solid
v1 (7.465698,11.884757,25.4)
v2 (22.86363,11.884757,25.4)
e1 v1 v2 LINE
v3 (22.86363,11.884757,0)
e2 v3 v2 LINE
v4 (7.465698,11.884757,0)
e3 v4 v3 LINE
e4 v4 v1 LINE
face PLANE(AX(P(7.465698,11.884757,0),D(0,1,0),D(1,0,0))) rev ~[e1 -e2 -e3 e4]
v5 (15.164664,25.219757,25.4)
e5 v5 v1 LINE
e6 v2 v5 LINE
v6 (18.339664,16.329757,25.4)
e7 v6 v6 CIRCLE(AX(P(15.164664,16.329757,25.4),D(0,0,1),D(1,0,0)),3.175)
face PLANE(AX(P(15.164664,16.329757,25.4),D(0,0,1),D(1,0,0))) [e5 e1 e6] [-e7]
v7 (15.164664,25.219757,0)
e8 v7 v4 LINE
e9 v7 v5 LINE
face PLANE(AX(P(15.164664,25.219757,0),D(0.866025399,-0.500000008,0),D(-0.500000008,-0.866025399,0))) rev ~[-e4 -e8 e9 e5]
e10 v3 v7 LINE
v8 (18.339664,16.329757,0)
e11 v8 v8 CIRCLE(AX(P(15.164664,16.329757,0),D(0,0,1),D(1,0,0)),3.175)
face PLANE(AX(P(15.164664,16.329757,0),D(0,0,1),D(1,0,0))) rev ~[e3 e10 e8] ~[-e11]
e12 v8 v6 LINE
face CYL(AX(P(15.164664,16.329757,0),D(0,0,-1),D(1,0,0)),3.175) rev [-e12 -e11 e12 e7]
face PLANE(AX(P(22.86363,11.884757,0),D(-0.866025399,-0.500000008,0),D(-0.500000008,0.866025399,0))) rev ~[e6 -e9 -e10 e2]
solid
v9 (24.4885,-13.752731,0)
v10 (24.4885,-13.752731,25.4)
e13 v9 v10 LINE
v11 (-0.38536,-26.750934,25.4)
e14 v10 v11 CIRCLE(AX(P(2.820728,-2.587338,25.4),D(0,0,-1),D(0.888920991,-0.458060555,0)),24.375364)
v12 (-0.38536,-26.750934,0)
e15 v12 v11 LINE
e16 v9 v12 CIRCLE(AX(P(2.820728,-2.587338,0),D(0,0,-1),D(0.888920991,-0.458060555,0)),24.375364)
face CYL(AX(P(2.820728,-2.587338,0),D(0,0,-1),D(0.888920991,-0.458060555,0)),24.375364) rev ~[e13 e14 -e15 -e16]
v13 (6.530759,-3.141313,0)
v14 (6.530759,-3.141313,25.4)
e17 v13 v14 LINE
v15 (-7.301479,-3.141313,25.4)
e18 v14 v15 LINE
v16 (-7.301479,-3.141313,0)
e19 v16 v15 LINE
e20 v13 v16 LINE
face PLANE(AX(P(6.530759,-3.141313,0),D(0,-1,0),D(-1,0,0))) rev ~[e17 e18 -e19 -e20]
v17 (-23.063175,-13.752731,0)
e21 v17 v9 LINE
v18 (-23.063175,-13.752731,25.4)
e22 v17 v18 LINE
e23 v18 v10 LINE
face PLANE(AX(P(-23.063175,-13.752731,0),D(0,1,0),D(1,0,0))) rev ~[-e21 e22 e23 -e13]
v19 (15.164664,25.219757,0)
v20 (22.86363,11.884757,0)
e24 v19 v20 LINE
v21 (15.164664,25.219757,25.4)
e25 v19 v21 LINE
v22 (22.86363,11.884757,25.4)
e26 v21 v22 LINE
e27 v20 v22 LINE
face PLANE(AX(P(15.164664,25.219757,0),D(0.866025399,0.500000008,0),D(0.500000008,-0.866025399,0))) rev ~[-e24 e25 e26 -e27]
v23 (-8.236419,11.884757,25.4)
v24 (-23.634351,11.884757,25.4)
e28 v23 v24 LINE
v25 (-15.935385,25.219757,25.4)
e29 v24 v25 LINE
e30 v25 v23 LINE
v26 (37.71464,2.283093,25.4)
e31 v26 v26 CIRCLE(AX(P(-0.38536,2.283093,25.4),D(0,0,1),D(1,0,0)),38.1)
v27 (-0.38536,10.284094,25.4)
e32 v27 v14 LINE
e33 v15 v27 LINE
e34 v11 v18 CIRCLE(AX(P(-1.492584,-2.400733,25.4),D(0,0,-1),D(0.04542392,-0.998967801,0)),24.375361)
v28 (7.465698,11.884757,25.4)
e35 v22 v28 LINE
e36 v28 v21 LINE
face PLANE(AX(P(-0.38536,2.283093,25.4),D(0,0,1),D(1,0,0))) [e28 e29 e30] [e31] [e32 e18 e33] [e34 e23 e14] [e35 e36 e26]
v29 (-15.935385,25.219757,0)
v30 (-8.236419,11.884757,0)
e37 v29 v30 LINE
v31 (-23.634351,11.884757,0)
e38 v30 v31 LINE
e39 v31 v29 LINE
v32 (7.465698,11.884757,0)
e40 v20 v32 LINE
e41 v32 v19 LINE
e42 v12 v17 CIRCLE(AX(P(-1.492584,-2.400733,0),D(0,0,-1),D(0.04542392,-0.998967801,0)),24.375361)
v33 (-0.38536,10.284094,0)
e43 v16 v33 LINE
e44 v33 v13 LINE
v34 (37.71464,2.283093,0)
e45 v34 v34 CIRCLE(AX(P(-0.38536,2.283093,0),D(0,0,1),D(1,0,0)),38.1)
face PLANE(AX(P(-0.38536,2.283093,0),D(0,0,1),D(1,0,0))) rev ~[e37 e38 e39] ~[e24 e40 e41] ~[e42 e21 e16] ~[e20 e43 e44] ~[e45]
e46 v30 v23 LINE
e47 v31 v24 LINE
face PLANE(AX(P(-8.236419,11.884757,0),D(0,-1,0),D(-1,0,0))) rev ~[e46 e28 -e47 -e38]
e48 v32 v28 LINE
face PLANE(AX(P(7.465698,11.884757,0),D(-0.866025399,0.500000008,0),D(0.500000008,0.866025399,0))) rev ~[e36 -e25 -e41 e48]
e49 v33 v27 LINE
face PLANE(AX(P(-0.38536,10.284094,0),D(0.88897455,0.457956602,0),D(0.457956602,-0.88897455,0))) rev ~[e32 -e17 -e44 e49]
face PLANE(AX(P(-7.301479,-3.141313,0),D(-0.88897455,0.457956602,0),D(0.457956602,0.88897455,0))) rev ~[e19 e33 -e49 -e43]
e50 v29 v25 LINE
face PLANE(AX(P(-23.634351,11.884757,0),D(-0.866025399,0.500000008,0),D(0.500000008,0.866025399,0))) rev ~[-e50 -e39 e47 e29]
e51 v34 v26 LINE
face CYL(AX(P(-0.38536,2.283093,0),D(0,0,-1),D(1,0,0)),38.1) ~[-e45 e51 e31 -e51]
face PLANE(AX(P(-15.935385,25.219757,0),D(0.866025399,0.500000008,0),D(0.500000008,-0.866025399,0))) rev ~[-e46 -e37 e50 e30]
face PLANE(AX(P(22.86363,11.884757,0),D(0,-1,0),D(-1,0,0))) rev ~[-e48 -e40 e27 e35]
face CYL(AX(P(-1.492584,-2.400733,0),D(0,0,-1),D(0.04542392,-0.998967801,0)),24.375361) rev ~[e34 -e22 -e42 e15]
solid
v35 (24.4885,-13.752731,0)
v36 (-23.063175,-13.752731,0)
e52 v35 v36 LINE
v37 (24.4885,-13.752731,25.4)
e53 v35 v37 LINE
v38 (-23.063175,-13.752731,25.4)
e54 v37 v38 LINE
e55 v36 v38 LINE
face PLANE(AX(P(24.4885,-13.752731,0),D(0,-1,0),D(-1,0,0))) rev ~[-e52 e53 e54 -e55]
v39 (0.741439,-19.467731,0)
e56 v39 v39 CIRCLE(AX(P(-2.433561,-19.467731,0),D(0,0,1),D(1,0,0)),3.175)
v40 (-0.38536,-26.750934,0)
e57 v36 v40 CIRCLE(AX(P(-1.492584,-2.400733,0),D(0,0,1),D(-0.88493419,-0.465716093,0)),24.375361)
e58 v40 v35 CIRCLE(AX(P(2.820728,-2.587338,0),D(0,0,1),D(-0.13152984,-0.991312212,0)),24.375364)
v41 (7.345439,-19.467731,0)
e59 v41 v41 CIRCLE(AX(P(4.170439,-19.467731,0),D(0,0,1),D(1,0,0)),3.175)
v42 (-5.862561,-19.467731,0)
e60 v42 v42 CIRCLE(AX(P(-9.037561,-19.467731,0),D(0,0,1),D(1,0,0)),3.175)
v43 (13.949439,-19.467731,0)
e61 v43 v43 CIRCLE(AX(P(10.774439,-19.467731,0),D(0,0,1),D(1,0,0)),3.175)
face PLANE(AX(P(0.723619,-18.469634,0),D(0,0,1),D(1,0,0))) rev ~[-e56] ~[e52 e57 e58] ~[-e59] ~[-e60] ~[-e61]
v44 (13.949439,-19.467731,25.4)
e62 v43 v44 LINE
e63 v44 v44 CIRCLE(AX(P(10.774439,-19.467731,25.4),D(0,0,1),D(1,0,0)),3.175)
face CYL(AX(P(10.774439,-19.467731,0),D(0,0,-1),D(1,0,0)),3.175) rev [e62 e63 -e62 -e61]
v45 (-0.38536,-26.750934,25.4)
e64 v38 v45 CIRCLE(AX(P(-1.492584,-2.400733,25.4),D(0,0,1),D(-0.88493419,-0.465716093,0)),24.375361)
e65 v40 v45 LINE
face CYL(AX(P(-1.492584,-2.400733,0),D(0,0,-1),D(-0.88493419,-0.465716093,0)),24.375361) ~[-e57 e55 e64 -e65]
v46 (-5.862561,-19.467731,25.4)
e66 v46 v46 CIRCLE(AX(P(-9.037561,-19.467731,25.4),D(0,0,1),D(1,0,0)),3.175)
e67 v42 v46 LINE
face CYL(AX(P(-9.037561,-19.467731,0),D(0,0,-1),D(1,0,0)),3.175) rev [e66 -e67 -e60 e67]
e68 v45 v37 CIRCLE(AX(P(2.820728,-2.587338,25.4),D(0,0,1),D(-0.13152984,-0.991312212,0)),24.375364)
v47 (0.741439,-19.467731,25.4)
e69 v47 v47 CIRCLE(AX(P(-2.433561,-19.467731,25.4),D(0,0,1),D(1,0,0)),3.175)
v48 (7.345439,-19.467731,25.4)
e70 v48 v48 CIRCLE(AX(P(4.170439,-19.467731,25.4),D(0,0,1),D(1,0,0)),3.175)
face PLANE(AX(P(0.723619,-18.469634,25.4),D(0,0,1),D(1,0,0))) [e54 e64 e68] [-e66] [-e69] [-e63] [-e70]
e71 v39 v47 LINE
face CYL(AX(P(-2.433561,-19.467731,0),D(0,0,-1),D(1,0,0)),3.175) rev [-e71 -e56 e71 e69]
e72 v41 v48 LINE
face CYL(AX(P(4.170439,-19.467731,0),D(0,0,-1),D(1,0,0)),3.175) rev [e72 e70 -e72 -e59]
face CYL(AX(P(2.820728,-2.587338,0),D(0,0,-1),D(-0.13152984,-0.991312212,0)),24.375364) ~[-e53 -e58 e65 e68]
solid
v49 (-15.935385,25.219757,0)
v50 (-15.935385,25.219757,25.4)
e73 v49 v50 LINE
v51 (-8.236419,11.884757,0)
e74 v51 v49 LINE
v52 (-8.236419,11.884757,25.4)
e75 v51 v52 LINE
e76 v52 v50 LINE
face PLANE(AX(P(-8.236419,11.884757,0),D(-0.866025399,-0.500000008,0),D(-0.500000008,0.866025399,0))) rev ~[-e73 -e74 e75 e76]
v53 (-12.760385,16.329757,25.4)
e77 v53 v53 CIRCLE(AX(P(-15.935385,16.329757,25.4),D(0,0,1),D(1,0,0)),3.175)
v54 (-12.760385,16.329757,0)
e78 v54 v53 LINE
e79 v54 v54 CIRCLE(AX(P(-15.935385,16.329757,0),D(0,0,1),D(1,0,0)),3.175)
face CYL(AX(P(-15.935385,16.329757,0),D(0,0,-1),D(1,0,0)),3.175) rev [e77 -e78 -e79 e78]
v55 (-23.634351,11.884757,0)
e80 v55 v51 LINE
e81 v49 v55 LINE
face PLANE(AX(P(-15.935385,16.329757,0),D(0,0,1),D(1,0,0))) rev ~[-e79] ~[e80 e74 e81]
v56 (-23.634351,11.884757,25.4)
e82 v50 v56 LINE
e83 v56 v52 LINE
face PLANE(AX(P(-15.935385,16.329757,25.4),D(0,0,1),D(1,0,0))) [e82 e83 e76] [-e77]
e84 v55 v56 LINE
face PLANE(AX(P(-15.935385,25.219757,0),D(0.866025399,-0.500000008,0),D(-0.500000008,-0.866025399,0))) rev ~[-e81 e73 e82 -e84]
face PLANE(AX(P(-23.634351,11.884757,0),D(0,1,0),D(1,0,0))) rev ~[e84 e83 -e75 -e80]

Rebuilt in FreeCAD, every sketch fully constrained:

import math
import FreeCAD as App
import Part
import Sketcher

V = App.Vector
Q = App.Units.Quantity


def add_polygon(sketch, points):
    """Adds a closed chain of lines whose ends are joined by coincident constraints."""
    first, n = sketch.GeometryCount, len(points)
    for a, b in zip(points, points[1:] + points[:1]):
        sketch.addGeometry(Part.LineSegment(App.Vector(*a, 0), App.Vector(*b, 0)), False)
    for i in range(n):
        sketch.addConstraint(Sketcher.Constraint("Coincident", first + i, 2, first + (i + 1) % n, 1))

doc = App.newDocument("Part")
params = doc.addObject("Spreadsheet::Sheet", "Params")
for row, (alias, value) in enumerate([
    ("sketch1_diameter", "3 in"),
    ("pad1_length", "1 in"),
    ("sketch2_diameter", "0.25 in"),
    ("pad2_length", "1 in"),
    ("sketch3_diameter", "0.25 in"),
    ("pad3_length", "1 in"),
    ("sketch4_diameter", "0.25 in"),
    ("pad4_length", "1 in"),
], start=1):
    params.set(f"A{row}", alias)
    params.set(f"B{row}", "=" + value)
    params.setAlias(f"B{row}", alias)

body = doc.addObject("PartDesign::Body", "Body")

sketch1 = body.newObject("Sketcher::SketchObject", "Sketch")
sketch1.AttachmentSupport = (doc.getObject("XY_Plane"), [""])
sketch1.MapMode = "FlatFace"
sketch1.addGeometry(Part.Circle(V(0, 2, 0), V(0, 0, 1), 38), False)
sketch1.addGeometry(Part.ArcOfCircle(Part.Circle(V(3, -3, 0), V(0, 0, 1), 24), math.radians(-98), math.radians(-27)), False)
sketch1.addGeometry(Part.ArcOfCircle(Part.Circle(V(-1, -2, 0), V(0, 0, 1), 24), math.radians(-152), math.radians(-87)), False)
sketch1.addGeometry(Part.LineSegment(V(-23, -14, 0), V(24, -14, 0)), False)
add_polygon(sketch1, [(7, -3), (-7, -3), (0, 10)])
add_polygon(sketch1, [(-8, 12), (-24, 12), (-16, 25)])
add_polygon(sketch1, [(23, 12), (7, 12), (15, 25)])
sketch1.addConstraint([
    Sketcher.Constraint("Coincident", 1, 1, 2, 2),
    Sketcher.Constraint("Coincident", 2, 1, 3, 1),
    Sketcher.Constraint("Coincident", 3, 2, 1, 2),
    Sketcher.Constraint("Horizontal", 3),
    Sketcher.Constraint("Horizontal", 4),
    Sketcher.Constraint("Horizontal", 7),
    Sketcher.Constraint("Horizontal", 10),
    Sketcher.Constraint("Parallel", 8, 11),
    Sketcher.Constraint("Parallel", 9, 12),
    Sketcher.Constraint("Horizontal", 9, 2, 10, 2),
    Sketcher.Constraint("Horizontal", 8, 2, 11, 2),
    Sketcher.Constraint("Vertical", 0, 3, 1, 1),
    Sketcher.Constraint("Vertical", 1, 1, 5, 2),
    Sketcher.Constraint("Equal", 5, 6),
    Sketcher.Constraint("Equal", 8, 9),
    Sketcher.Constraint("Diameter", 0, Q("3 in")),
    Sketcher.Constraint("Angle", 8, Q("59.999999 deg")),
    Sketcher.Constraint("Radius", 2, 24.375361),
    Sketcher.Constraint("DistanceY", 0, 3, 5, 2, Q("0.315 in")),
    Sketcher.Constraint("DistanceY", 7, 2, 8, 2, Q("0.525 in")),
    Sketcher.Constraint("Radius", 1, 24.375364),
    Sketcher.Constraint("DistanceX", -1, 1, 3, 2, 24.4885),
    Sketcher.Constraint("DistanceY", 1, 1, 2, 3, 24.350201),
    Sketcher.Constraint("DistanceX", 8, 2, 2, 3, 14.442801),
    Sketcher.Constraint("DistanceX", 3, 1, 3, 2, 47.551675),
    Sketcher.Constraint("DistanceX", 4, 2, 4, 1, 13.832238),
    Sketcher.Constraint("DistanceX", 0, 3, -1, 1, 0.38536),
    Sketcher.Constraint("DistanceY", 1, 3, -1, 1, 2.587338),
    Sketcher.Constraint("DistanceX", -1, 1, 12, 2, 22.86363),
    Sketcher.Constraint("DistanceY", 1, 3, 0, 3, 4.870431),
    Sketcher.Constraint("DistanceY", 4, 2, 2, 3, 0.74058),
    Sketcher.Constraint("DistanceY", 4, 2, 7, 2, 15.02607),
])
sketch1.setExpression("Constraints[24]", "Params.sketch1_diameter")
pad1 = body.newObject("PartDesign::Pad", "Pad")
pad1.Profile = sketch1
pad1.setExpression("Length", "Params.pad1_length")
body2 = doc.addObject("PartDesign::Body", "Body001")

sketch2 = body2.newObject("Sketcher::SketchObject", "Sketch001")
sketch2.AttachmentSupport = (doc.getObject("XY_Plane001"), [""])
sketch2.MapMode = "FlatFace"
add_polygon(sketch2, [(-8.2, 11.9), (-15.9, 25.2), (-23.6, 11.9)])
sketch2.addGeometry(Part.Circle(V(-15.9, 16.3, 0), V(0, 0, 1), 3.2), False)
sketch2.addConstraint([
    Sketcher.Constraint("Horizontal", 2),
    Sketcher.Constraint("Vertical", 3, 3, 0, 2),
    Sketcher.Constraint("Equal", 0, 1),
    Sketcher.Constraint("Diameter", 3, Q("0.25 in")),
    Sketcher.Constraint("Angle", 0, Q("120.000001 deg")),
    Sketcher.Constraint("DistanceY", 3, 3, 0, 2, Q("0.35 in")),
    Sketcher.Constraint("DistanceY", 1, 2, 3, 3, Q("0.175 in")),
    Sketcher.Constraint("DistanceX", 1, 2, -1, 1, 23.634351),
    Sketcher.Constraint("DistanceY", -1, 1, 3, 3, 16.329757),
])
sketch2.setExpression("Constraints[6]", "Params.sketch2_diameter")
pad2 = body2.newObject("PartDesign::Pad", "Pad001")
pad2.Profile = sketch2
pad2.setExpression("Length", "Params.pad2_length")
body3 = doc.addObject("PartDesign::Body", "Body002")

sketch3 = body3.newObject("Sketcher::SketchObject", "Sketch002")
sketch3.AttachmentSupport = (doc.getObject("XY_Plane002"), [""])
sketch3.MapMode = "FlatFace"
add_polygon(sketch3, [(22.9, 11.9), (15.2, 25.2), (7.5, 11.9)])
sketch3.addGeometry(Part.Circle(V(15.2, 16.3, 0), V(0, 0, 1), 3.2), False)
sketch3.addConstraint([
    Sketcher.Constraint("Horizontal", 2),
    Sketcher.Constraint("Vertical", 3, 3, 0, 2),
    Sketcher.Constraint("Equal", 0, 1),
    Sketcher.Constraint("Diameter", 3, Q("0.25 in")),
    Sketcher.Constraint("Angle", 0, Q("120.000001 deg")),
    Sketcher.Constraint("DistanceY", 3, 3, 0, 2, Q("0.35 in")),
    Sketcher.Constraint("DistanceY", 1, 2, 3, 3, Q("0.175 in")),
    Sketcher.Constraint("DistanceX", -1, 1, 2, 2, 22.86363),
    Sketcher.Constraint("DistanceY", -1, 1, 3, 3, 16.329757),
])
sketch3.setExpression("Constraints[6]", "Params.sketch3_diameter")
pad3 = body3.newObject("PartDesign::Pad", "Pad002")
pad3.Profile = sketch3
pad3.setExpression("Length", "Params.pad3_length")
body4 = doc.addObject("PartDesign::Body", "Body003")

sketch4 = body4.newObject("Sketcher::SketchObject", "Sketch003")
sketch4.AttachmentSupport = (doc.getObject("XY_Plane003"), [""])
sketch4.MapMode = "FlatFace"
sketch4.addGeometry([
    Part.LineSegment(V(24.5, -13.8, 0), V(-23.1, -13.8, 0)),
    Part.ArcOfCircle(Part.Circle(V(-1.5, -2.4, 0), V(0, 0, 1), 24.4), math.radians(-152), math.radians(-87)),
    Part.ArcOfCircle(Part.Circle(V(2.8, -2.6, 0), V(0, 0, 1), 24.4), math.radians(-98), math.radians(-27)),
    Part.Circle(V(-9, -19.5, 0), V(0, 0, 1), 3.2),
    Part.Circle(V(-2.4, -19.5, 0), V(0, 0, 1), 3.2),
    Part.Circle(V(4.2, -19.5, 0), V(0, 0, 1), 3.2),
    Part.Circle(V(10.8, -19.5, 0), V(0, 0, 1), 3.2),
], False)
sketch4.addConstraint([
    Sketcher.Constraint("Coincident", 0, 2, 1, 1),
    Sketcher.Constraint("Coincident", 1, 2, 2, 1),
    Sketcher.Constraint("Coincident", 2, 2, 0, 1),
    Sketcher.Constraint("Horizontal", 0),
    Sketcher.Constraint("Equal", 3, 4),
    Sketcher.Constraint("Equal", 4, 5),
    Sketcher.Constraint("Equal", 5, 6),
    Sketcher.Constraint("Horizontal", 3, 3, 4, 3),
    Sketcher.Constraint("Horizontal", 4, 3, 5, 3),
    Sketcher.Constraint("Horizontal", 5, 3, 6, 3),
    Sketcher.Constraint("Diameter", 3, Q("0.25 in")),
    Sketcher.Constraint("DistanceX", 3, 3, 4, 3, Q("0.26 in")),
    Sketcher.Constraint("DistanceX", 4, 3, 5, 3, Q("0.26 in")),
    Sketcher.Constraint("DistanceX", 5, 3, 6, 3, Q("0.26 in")),
    Sketcher.Constraint("Radius", 1, 24.375361),
    Sketcher.Constraint("DistanceY", 3, 3, 0, 2, Q("0.225 in")),
    Sketcher.Constraint("Radius", 2, 24.375364),
    Sketcher.Constraint("DistanceX", -1, 1, 2, 2, 24.4885),
    Sketcher.Constraint("DistanceX", 4, 3, 1, 2, 2.048201),
    Sketcher.Constraint("DistanceY", 1, 2, 1, 3, 24.350201),
    Sketcher.Constraint("DistanceX", 0, 2, 0, 1, 47.551675),
    Sketcher.Constraint("DistanceY", 2, 3, -1, 1, 2.587338),
    Sketcher.Constraint("DistanceX", 3, 3, -1, 1, 9.037561),
])
sketch4.setExpression("Constraints[10]", "Params.sketch4_diameter")
pad4 = body4.newObject("PartDesign::Pad", "Pad003")
pad4.Profile = sketch4
pad4.setExpression("Length", "Params.pad4_length")

doc.recompute()
